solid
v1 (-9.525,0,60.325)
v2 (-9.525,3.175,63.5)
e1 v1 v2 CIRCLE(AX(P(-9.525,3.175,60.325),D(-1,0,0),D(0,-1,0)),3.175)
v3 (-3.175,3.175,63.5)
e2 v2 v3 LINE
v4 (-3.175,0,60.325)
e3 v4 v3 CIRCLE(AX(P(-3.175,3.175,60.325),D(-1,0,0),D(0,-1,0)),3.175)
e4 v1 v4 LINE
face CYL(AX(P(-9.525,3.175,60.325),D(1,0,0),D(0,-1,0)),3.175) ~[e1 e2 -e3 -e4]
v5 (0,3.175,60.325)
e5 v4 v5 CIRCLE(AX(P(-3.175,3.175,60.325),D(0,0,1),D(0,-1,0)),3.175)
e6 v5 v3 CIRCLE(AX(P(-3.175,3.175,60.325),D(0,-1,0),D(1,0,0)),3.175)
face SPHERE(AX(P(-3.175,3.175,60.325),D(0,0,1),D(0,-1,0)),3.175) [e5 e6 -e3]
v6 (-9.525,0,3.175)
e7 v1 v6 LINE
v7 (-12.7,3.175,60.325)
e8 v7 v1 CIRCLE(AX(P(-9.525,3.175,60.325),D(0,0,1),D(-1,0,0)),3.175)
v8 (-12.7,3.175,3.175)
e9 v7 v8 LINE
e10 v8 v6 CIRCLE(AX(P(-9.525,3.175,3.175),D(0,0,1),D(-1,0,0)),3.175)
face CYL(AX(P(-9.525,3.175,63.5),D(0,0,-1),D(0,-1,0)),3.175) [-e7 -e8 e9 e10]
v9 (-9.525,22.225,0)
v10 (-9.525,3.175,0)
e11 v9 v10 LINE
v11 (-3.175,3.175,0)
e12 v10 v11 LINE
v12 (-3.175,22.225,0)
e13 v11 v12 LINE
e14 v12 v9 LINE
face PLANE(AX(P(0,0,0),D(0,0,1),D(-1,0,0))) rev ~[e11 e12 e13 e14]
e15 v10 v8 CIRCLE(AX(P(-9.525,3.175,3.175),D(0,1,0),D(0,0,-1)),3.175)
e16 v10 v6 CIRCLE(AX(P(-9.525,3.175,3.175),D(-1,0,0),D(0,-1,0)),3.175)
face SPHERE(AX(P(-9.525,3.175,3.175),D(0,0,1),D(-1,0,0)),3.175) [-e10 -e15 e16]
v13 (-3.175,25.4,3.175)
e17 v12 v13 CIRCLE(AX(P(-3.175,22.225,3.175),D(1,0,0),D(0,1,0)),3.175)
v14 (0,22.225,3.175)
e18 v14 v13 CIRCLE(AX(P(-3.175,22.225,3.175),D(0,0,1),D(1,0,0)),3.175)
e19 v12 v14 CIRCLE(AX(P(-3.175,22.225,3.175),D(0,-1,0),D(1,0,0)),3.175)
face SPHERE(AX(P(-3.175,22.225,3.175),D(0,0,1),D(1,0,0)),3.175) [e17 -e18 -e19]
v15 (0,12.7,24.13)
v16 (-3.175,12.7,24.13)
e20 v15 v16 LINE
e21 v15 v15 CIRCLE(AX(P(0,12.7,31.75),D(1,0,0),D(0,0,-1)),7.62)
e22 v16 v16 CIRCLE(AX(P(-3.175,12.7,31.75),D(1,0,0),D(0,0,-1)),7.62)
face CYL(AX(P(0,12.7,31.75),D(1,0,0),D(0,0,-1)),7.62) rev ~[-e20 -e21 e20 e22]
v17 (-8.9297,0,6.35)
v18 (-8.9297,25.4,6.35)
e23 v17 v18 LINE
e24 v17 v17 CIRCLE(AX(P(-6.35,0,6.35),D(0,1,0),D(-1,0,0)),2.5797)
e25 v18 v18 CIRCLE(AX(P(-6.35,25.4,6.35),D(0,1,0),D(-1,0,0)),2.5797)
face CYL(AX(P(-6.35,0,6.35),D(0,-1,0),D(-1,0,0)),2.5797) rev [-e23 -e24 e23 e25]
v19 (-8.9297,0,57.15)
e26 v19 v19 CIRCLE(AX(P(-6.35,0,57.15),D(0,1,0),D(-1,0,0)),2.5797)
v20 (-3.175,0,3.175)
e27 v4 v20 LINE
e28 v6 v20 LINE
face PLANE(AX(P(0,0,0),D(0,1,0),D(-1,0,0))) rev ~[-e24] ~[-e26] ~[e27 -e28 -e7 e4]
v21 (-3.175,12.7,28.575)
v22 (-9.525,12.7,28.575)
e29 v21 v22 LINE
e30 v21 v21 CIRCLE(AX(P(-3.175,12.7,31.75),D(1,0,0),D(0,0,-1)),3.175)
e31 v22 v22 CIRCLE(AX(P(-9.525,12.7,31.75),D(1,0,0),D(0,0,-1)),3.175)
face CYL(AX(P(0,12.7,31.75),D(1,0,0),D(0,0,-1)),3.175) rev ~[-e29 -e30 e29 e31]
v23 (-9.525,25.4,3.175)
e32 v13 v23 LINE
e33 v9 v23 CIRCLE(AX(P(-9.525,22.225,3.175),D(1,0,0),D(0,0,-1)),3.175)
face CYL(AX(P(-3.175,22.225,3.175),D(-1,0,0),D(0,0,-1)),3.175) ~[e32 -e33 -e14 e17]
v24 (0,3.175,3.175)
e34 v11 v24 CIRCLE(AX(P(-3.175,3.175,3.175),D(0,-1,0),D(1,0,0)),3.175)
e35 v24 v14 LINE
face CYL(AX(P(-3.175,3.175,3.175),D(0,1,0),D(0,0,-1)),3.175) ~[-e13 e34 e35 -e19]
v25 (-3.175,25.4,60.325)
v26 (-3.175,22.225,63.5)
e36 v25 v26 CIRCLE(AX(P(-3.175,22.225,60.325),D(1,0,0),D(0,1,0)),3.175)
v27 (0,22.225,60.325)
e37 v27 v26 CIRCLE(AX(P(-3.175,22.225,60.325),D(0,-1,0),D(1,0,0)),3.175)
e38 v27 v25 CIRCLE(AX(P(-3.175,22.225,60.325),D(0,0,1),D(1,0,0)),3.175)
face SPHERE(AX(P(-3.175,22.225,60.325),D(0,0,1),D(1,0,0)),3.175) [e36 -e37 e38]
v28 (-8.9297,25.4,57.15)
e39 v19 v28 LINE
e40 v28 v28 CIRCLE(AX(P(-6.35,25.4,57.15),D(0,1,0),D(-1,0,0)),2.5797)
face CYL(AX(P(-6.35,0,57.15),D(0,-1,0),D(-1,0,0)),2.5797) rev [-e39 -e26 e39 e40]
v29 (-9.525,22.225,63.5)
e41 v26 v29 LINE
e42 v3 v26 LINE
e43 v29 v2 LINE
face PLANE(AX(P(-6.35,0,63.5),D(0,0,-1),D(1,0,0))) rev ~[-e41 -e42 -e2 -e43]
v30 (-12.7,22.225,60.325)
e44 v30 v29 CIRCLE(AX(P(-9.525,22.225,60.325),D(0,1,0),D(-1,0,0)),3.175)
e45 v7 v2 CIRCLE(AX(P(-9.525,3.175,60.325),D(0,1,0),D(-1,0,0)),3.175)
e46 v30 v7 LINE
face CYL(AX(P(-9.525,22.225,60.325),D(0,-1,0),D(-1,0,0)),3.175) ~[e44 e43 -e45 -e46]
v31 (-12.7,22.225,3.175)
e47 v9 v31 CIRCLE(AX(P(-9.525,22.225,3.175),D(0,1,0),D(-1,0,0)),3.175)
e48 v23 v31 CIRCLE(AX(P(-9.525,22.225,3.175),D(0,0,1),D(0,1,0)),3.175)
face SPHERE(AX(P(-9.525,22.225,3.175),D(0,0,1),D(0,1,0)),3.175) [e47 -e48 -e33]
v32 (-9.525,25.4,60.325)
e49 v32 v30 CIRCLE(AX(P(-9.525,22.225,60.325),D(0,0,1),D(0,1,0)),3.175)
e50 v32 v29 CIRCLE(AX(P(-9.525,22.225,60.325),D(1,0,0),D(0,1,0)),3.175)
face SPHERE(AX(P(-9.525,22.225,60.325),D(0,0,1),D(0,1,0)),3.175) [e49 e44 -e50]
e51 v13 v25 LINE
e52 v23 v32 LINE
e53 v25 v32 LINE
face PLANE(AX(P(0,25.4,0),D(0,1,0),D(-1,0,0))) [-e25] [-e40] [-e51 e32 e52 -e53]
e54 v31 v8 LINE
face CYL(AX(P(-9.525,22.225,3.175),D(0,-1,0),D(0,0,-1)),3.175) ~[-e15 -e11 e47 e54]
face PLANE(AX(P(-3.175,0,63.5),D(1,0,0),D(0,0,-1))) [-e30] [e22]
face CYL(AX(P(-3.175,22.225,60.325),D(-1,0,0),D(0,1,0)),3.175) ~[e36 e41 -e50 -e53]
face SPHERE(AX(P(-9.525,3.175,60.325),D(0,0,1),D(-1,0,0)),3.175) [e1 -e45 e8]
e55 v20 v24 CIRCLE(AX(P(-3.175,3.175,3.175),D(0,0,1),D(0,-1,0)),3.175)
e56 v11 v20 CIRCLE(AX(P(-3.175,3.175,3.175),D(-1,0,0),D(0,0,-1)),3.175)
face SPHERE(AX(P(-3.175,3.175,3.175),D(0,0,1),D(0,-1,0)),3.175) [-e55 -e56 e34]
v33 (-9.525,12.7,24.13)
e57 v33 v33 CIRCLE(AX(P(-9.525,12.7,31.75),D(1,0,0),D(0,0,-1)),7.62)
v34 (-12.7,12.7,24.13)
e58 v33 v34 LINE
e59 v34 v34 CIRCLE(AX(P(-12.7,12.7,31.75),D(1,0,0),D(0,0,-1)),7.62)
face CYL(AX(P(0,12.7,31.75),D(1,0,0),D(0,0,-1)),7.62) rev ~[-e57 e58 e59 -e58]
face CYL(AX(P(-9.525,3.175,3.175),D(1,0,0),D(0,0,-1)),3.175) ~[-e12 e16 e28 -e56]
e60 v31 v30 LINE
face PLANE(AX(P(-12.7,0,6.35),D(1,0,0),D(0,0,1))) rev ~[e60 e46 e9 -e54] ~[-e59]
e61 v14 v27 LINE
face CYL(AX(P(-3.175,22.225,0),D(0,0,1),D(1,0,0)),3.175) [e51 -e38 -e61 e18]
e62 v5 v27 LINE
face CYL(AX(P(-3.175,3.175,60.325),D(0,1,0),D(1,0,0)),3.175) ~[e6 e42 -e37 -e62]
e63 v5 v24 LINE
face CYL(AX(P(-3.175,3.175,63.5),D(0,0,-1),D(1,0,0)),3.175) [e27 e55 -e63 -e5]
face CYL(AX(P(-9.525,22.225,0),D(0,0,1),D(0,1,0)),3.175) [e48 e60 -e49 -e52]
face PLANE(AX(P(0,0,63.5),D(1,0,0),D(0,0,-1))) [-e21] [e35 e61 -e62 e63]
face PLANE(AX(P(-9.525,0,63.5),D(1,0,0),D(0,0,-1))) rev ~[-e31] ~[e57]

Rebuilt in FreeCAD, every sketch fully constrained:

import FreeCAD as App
import Part
import Sketcher
from FreeCAD import Vector
Q = App.Units.Quantity


def edges_at(feature, points):
    """Names of the edges that pass closest to the given points."""
    edges = feature.Shape.Edges
    near = lambda p: min(range(len(edges)), key=lambda i: edges[i].distToShape(Part.Vertex(*p))[0])
    return sorted({f"Edge{near(p) + 1}" for p in points})


def add_polygon(sketch, points):
    """Adds a closed chain of lines whose ends are joined by coincident constraints."""
    first, n = sketch.GeometryCount, len(points)
    for a, b in zip(points, points[1:] + points[:1]):
        sketch.addGeometry(Part.LineSegment(App.Vector(*a, 0), App.Vector(*b, 0)), False)
    for i in range(n):
        sketch.addConstraint(Sketcher.Constraint("Coincident", first + i, 2, first + (i + 1) % n, 1))

doc = App.newDocument("Part")
body = doc.addObject("PartDesign::Body", "Body")

# Sketch on XZ plane
sketch1 = body.newObject("Sketcher::SketchObject", "Sketch")
sketch1.AttachmentSupport = (doc.getObject("XZ_Plane"), [""])
sketch1.MapMode = "FlatFace"
add_polygon(sketch1, [(0, 0), (-12.7, 0), (-12.7, 63.5), (0, 63.5)])  # lines 0-3
sketch1.addGeometry(Part.Circle(Vector(-6.35, 6.35, 0), Vector(0, 0, 1), 2.5797), False)  # 4
sketch1.addGeometry(Part.Circle(Vector(-6.35, 57.15, 0), Vector(0, 0, 1), 2.5797), False)  # 5
sketch1.addConstraint([
    Sketcher.Constraint("Horizontal", 0),
    Sketcher.Constraint("Vertical", 1),
    Sketcher.Constraint("Horizontal", 2),
    Sketcher.Constraint("Vertical", 3),
    Sketcher.Constraint("Coincident", 3, 2, -1, 1),
    Sketcher.Constraint("Equal", 4, 5),
    Sketcher.Constraint("Vertical", 4, 3, 5, 3),
    Sketcher.Constraint("Diameter", 4, Q("0.203126 in")),
    Sketcher.Constraint("DistanceX", 0, 2, 0, 1, Q("0.5 in")),
    Sketcher.Constraint("DistanceY", 4, 3, 5, 3, Q("2 in")),
    Sketcher.Constraint("DistanceX", 4, 3, -1, 1, Q("0.25 in")),
    Sketcher.Constraint("DistanceY", -1, 1, 4, 3, Q("0.25 in")),
    Sketcher.Constraint("DistanceY", 5, 3, 1, 2, Q("0.25 in")),
])
pad1 = body.newObject("PartDesign::Pad", "Pad")
pad1.Profile = sketch1
pad1.Length = Q("1 in")
pad1.Reversed = True

# Sketch on YZ plane
sketch2 = body.newObject("Sketcher::SketchObject", "Sketch001")
sketch2.AttachmentSupport = (doc.getObject("YZ_Plane"), [""])
sketch2.MapMode = "FlatFace"
sketch2.addGeometry(Part.Circle(Vector(12.7, 31.75, 0), Vector(0, 0, 1), 7.62), False)
sketch2.addConstraint([
    Sketcher.Constraint("Diameter", 0, Q("0.6 in")),
    Sketcher.Constraint("DistanceX", -1, 1, 0, 3, Q("0.5 in")),
    Sketcher.Constraint("DistanceY", -1, 1, 0, 3, Q("1.25 in")),
])
pocket1 = body.newObject("PartDesign::Pocket", "Pocket")
pocket1.Profile = sketch2
pocket1.Length = Q("0.5 in")
doc.recompute()

fillet = body.newObject("PartDesign::Fillet", "Fillet")
fillet.Base = (pocket1, edges_at(pocket1, [
    (-12.7, 25.4, 31.75),
    (0, 25.4, 31.75),
    (0, 0, 31.75),
    (-12.7, 0, 31.75),
]))
fillet.Radius = Q("0.125 in")
doc.recompute()

fillet2 = body.newObject("PartDesign::Fillet", "Fillet001")
fillet2.Base = (fillet, edges_at(fillet, [
    (-0.93, 24.47, 63.5),
    (-6.35, 25.4, 63.5),
    (-11.77, 24.47, 63.5),
    (-12.7, 12.7, 63.5),
    (-11.77, 0.93, 63.5),
    (-6.35, 0, 63.5),
    (-0.93, 0.93, 63.5),
    (0, 12.7, 63.5),
    (-0.93, 24.47, 0),
    (-6.35, 25.4, 0),
    (-11.77, 24.47, 0),
    (-12.7, 12.7, 0),
    (-11.77, 0.93, 0),
    (-6.35, 0, 0),
    (-0.93, 0.93, 0),
    (0, 12.7, 0),
]))
fillet2.Radius = Q("0.125 in")

# Sketch on YZ plane
sketch3 = body.newObject("Sketcher::SketchObject", "Sketch002")
sketch3.AttachmentSupport = (doc.getObject("YZ_Plane"), [""])
sketch3.MapMode = "FlatFace"
sketch3.addGeometry([
    Part.Circle(Vector(12.7, 31.75, 0), Vector(0, 0, 1), 7.62),
    Part.Circle(Vector(12.7, 31.75, 0), Vector(0, 0, 1), 3.175),
], False)
sketch3.addConstraint([
    Sketcher.Constraint("Coincident", 1, 3, 0, 3),
    Sketcher.Constraint("Diameter", 0, Q("0.6 in")),
    Sketcher.Constraint("Diameter", 1, Q("0.25 in")),
    Sketcher.Constraint("DistanceX", -1, 1, 0, 3, Q("0.5 in")),
    Sketcher.Constraint("DistanceY", -1, 1, 0, 3, Q("1.25 in")),
])
pad2 = body.newObject("PartDesign::Pad", "Pad001")
pad2.Profile = sketch3
pad2.Length = Q("0.375 in")
pad2.Reversed = True

# Sketch on YZ plane
sketch4 = body.newObject("Sketcher::SketchObject", "Sketch003")
sketch4.AttachmentSupport = (doc.getObject("YZ_Plane"), [""])
sketch4.MapMode = "FlatFace"
sketch4.addGeometry([
    Part.Circle(Vector(12.7, 31.75, 0), Vector(0, 0, 1), 7.62),
    Part.Circle(Vector(12.7, 31.75, 0), Vector(0, 0, 1), 3.175),
], False)
sketch4.addConstraint([
    Sketcher.Constraint("Coincident", 1, 3, 0, 3),
    Sketcher.Constraint("Diameter", 0, Q("0.6 in")),
    Sketcher.Constraint("Diameter", 1, Q("0.25 in")),
    Sketcher.Constraint("DistanceX", -1, 1, 0, 3, Q("0.5 in")),
    Sketcher.Constraint("DistanceY", -1, 1, 0, 3, Q("1.25 in")),
])
pocket2 = body.newObject("PartDesign::Pocket", "Pocket001")
pocket2.Profile = sketch4
pocket2.Length = Q("0.125 in")

doc.recompute()
